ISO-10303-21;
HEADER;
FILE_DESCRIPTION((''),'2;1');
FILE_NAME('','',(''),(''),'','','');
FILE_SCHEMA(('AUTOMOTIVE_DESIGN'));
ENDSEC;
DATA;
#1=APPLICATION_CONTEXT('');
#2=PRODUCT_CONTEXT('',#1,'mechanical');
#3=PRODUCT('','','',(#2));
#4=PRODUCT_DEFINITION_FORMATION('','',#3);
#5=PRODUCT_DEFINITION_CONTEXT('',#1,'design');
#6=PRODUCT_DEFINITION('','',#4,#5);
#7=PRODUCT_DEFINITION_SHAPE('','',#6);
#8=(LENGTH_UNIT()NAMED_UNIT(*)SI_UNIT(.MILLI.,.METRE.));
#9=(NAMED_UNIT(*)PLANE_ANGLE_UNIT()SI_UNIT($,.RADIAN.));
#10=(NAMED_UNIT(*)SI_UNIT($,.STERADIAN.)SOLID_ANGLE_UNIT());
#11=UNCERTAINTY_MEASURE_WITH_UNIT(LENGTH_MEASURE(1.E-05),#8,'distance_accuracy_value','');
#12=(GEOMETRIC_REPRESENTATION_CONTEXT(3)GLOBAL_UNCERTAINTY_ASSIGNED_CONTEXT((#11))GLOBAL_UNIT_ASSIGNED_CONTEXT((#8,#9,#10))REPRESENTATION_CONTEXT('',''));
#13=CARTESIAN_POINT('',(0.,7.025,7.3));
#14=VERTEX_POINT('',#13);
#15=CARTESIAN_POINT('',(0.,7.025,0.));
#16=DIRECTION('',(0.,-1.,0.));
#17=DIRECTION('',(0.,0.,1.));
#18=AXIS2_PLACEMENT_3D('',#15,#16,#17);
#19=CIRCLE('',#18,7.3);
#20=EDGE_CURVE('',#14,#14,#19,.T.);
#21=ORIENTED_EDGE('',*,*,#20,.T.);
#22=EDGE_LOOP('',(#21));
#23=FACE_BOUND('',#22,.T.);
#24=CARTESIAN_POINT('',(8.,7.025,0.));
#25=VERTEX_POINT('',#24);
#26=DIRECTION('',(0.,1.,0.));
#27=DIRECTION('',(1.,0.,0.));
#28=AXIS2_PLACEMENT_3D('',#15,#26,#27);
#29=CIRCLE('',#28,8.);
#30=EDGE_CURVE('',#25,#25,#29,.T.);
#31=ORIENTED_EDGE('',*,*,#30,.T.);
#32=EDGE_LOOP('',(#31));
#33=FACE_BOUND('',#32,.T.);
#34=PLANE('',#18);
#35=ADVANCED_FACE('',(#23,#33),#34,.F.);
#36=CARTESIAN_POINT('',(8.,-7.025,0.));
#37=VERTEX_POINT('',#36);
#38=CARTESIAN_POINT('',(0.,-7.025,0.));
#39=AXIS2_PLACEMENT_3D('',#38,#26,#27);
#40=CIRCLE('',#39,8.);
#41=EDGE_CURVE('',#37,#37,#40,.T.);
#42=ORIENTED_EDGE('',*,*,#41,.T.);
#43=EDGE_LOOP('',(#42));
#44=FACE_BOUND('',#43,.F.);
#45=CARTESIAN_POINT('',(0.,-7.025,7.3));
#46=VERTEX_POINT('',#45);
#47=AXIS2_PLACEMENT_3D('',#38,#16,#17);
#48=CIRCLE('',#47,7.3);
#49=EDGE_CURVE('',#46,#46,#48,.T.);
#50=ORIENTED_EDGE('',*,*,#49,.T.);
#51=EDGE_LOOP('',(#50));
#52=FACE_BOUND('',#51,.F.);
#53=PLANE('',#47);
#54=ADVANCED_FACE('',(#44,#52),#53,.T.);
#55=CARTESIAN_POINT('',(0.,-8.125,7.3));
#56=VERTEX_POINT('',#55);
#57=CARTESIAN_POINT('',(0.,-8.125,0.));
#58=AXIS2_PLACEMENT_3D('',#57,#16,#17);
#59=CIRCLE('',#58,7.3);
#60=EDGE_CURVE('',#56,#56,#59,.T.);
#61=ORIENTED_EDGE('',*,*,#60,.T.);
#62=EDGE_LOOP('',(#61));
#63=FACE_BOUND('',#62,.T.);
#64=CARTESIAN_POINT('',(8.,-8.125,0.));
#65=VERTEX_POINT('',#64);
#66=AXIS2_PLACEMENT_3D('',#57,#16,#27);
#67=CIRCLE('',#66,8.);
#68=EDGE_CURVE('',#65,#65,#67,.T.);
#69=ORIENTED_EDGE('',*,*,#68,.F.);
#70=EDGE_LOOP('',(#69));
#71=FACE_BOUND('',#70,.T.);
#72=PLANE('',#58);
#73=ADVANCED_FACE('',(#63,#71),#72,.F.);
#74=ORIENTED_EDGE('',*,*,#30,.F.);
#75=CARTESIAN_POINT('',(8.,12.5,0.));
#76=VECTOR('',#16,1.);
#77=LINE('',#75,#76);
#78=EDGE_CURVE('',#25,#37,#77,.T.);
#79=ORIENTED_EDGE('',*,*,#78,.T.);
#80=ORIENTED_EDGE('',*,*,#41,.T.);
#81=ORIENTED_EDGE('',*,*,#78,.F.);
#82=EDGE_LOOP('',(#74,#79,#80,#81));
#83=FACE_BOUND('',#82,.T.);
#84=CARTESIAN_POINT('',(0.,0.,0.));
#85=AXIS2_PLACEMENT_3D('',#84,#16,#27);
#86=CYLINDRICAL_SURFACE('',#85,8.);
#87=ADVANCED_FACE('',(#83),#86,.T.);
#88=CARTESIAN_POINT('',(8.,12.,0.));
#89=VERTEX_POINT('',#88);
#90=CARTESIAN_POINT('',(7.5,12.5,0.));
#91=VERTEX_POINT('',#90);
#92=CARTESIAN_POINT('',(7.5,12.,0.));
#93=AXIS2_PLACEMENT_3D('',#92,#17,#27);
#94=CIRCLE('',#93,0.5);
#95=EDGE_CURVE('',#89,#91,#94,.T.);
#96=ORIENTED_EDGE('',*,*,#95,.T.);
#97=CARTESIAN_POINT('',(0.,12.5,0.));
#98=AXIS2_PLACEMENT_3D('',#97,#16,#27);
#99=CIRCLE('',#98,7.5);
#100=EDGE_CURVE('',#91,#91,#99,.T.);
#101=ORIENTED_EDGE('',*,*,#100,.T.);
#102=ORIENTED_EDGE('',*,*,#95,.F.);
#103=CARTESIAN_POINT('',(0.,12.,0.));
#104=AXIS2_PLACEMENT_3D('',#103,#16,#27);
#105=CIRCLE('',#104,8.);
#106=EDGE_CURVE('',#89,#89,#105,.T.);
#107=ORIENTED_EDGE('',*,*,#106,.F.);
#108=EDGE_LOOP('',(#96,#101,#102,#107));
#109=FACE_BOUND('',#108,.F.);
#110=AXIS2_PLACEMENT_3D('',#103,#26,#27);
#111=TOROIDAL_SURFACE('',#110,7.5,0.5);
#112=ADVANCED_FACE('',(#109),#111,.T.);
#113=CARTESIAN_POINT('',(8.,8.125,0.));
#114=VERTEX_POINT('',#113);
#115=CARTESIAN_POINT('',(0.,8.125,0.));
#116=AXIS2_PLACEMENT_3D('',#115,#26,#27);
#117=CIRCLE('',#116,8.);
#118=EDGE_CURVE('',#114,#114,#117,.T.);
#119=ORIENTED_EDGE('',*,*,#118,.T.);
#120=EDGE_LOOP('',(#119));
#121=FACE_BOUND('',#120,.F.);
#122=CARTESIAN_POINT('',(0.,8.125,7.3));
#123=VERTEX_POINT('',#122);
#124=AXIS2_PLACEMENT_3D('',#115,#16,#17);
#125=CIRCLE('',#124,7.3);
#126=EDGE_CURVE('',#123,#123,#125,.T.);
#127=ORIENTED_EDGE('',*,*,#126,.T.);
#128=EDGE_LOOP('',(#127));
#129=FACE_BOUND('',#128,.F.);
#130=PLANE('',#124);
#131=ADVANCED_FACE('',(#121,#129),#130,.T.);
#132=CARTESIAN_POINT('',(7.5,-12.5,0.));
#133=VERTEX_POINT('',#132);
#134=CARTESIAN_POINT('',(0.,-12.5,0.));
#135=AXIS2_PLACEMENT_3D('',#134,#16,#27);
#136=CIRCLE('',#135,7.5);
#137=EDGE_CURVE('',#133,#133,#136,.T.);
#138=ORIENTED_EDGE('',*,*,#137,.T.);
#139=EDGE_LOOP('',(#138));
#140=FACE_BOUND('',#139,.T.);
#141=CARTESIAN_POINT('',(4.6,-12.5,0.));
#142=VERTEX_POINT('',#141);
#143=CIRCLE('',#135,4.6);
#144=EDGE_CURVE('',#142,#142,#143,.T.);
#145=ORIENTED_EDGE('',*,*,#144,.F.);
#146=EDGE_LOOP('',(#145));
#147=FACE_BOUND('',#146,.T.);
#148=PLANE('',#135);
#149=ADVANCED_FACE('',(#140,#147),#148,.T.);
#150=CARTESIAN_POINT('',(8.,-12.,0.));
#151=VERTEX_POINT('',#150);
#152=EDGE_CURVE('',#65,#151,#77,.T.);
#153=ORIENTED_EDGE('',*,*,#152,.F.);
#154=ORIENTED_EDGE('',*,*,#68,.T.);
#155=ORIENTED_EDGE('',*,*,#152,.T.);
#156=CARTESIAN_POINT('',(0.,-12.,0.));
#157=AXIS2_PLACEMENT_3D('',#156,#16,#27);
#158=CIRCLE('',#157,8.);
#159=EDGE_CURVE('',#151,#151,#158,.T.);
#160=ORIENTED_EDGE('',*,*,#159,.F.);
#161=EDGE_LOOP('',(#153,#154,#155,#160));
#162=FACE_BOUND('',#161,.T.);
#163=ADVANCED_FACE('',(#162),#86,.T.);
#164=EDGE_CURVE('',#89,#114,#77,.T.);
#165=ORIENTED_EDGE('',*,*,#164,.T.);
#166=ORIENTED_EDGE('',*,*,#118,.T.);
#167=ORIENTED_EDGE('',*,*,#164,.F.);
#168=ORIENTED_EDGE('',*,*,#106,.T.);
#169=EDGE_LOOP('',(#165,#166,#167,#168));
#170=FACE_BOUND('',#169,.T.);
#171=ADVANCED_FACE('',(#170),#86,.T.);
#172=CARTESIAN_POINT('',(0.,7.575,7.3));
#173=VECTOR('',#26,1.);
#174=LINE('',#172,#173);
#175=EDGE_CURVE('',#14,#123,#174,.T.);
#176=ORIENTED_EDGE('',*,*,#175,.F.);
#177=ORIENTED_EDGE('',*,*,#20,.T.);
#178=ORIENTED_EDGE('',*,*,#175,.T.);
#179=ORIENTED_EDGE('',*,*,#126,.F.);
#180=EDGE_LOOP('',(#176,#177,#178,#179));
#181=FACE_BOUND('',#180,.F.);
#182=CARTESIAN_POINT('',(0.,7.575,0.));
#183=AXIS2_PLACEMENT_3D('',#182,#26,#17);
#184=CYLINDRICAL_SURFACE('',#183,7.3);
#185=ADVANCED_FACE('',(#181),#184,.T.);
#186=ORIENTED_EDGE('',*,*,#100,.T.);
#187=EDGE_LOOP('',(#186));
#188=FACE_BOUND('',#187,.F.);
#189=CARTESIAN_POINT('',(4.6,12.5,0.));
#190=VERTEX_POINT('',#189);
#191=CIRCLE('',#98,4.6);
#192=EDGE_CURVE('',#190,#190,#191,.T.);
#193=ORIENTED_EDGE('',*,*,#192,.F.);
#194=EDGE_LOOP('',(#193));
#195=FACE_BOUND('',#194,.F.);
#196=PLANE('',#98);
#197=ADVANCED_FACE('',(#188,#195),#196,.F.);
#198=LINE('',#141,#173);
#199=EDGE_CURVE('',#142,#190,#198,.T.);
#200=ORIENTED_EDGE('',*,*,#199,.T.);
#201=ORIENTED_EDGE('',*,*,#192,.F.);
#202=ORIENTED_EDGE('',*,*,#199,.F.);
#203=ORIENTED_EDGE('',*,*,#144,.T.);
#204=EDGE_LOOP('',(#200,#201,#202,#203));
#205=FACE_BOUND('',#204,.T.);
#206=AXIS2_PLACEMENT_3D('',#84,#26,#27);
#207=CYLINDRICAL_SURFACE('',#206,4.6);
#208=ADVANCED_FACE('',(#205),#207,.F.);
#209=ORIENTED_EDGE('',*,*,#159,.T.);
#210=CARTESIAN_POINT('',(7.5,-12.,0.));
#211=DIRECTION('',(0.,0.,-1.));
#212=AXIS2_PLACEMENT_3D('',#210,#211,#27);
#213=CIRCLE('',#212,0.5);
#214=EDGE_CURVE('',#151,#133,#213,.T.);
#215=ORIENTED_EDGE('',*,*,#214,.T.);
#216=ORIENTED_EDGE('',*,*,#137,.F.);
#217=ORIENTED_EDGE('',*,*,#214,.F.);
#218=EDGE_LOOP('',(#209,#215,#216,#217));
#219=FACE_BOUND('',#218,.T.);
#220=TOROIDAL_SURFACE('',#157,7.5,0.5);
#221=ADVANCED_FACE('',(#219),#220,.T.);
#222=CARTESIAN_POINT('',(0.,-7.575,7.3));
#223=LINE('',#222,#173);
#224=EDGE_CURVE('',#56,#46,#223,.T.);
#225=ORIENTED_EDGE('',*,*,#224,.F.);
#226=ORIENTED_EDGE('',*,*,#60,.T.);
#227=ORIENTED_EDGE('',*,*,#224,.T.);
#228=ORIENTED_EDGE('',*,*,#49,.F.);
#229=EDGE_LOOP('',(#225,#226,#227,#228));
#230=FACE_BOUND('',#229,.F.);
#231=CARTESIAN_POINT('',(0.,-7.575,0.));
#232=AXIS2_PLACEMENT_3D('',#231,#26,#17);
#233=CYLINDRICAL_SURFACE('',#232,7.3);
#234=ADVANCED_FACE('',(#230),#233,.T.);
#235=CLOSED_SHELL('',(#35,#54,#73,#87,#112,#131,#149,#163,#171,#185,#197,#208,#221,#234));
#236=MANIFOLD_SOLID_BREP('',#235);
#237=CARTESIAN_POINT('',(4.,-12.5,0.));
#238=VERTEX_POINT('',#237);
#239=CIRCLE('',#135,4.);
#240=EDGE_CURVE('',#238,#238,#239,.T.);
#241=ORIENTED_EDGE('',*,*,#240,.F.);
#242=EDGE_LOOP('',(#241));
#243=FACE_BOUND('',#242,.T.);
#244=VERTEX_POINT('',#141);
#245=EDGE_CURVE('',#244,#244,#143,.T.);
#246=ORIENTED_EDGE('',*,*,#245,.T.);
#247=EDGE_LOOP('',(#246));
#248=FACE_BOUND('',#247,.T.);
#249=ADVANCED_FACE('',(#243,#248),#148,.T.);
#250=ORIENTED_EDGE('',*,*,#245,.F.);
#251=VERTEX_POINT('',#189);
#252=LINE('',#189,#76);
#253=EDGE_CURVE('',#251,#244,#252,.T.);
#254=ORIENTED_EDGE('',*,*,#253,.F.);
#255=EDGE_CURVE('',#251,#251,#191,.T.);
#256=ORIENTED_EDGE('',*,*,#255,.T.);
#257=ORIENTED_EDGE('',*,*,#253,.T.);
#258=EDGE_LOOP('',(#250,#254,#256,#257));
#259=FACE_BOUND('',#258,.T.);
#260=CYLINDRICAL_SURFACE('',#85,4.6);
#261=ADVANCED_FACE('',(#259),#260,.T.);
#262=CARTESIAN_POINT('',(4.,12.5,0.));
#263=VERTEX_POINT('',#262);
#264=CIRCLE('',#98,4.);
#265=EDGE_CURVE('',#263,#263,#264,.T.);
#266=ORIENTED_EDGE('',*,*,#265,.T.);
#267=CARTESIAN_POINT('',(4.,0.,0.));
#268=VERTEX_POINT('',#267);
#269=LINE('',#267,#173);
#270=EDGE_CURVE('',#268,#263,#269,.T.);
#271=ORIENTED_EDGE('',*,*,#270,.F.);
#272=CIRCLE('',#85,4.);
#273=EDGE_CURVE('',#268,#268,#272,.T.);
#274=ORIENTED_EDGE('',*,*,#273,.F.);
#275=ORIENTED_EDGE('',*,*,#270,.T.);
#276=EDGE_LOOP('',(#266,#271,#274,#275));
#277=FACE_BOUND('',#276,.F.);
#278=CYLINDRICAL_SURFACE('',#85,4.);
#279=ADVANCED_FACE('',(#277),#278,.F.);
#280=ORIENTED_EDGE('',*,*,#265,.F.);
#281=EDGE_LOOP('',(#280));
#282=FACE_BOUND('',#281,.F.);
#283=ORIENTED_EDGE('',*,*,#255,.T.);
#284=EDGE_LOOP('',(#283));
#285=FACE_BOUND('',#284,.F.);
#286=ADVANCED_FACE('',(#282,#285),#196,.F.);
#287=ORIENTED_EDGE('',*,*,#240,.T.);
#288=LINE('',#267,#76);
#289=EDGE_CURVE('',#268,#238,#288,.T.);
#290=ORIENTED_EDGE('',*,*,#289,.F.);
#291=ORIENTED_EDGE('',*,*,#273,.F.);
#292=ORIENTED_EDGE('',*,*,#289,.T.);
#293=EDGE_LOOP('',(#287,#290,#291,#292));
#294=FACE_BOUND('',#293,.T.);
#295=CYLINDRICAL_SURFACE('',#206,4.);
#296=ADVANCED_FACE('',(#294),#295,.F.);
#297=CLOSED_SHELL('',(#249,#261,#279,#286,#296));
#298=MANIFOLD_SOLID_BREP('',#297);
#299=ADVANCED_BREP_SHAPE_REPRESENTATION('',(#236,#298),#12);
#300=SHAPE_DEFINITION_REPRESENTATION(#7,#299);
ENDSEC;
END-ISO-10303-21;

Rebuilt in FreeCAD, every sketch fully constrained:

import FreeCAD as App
import Part
import Sketcher

V = App.Vector
Q = App.Units.Quantity


def edges_at(feature, points):
    """Names of the edges that pass closest to the given points."""
    edges = feature.Shape.Edges
    near = lambda p: min(range(len(edges)), key=lambda i: edges[i].distToShape(Part.Vertex(*p))[0])
    return sorted({f"Edge{near(p) + 1}" for p in points})

doc = App.newDocument("Part")
params = doc.addObject("Spreadsheet::Sheet", "Params")
for row, (alias, value) in enumerate([
    ("sketch1_diameter", "16 mm"),
    ("sketch1_diameter2", "9.2 mm"),
    ("pad1_length", "25 mm"),
    ("sketch2_width", "1.1 mm"),
    ("sketch2_height", "0.7 mm"),
    ("groove_angle", "360 deg"),
    ("fillet_radius", "0.5 mm"),
    ("sketch3_diameter", "8 mm"),
    ("sketch3_diameter2", "9.2 mm"),
    ("pad2_length", "12.5 mm"),
    ("pad2_length2", "12.5 mm"),
], start=1):
    params.set(f"A{row}", alias)
    params.set(f"B{row}", "=" + value)
    params.setAlias(f"B{row}", alias)

body = doc.addObject("PartDesign::Body", "Body")

sketch1 = body.newObject("Sketcher::SketchObject", "Sketch")
sketch1.AttachmentSupport = (doc.getObject("XZ_Plane"), [""])
sketch1.MapMode = "FlatFace"
sketch1.addGeometry(Part.Circle(V(0, 0, 0), V(0, 0, 1), 8), False)
sketch1.addGeometry(Part.Circle(V(0, 0, 0), V(0, 0, 1), 4.6), False)
sketch1.addConstraint(Sketcher.Constraint("Coincident", 0, 3, -1, 1))
sketch1.addConstraint(Sketcher.Constraint("Coincident", 1, 3, -1, 1))
sketch1.addConstraint(Sketcher.Constraint("Diameter", 0, Q("16 mm")))
sketch1.addConstraint(Sketcher.Constraint("Diameter", 1, Q("9.2 mm")))
sketch1.setExpression("Constraints[2]", "Params.sketch1_diameter")
sketch1.setExpression("Constraints[3]", "Params.sketch1_diameter2")
pad1 = body.newObject("PartDesign::Pad", "Pad")
pad1.Profile = sketch1
pad1.setExpression("Length", "Params.pad1_length")
pad1.Midplane = True

sketch2 = body.newObject("Sketcher::SketchObject", "Sketch001")
sketch2.AttachmentSupport = (doc.getObject("YZ_Plane"), [""])
sketch2.MapMode = "FlatFace"
sketch2.addGeometry(Part.LineSegment(V(-8.1, 8, 0), V(-8.1, 7.3, 0)), False)
sketch2.addGeometry(Part.LineSegment(V(-8.1, 7.3, 0), V(-7, 7.3, 0)), False)
sketch2.addGeometry(Part.LineSegment(V(-7, 7.3, 0), V(-7, 8, 0)), False)
sketch2.addGeometry(Part.LineSegment(V(-7, 8, 0), V(-8.1, 8, 0)), False)
sketch2.addGeometry(Part.LineSegment(V(7, 8, 0), V(7, 7.3, 0)), False)
sketch2.addGeometry(Part.LineSegment(V(7, 7.3, 0), V(8.1, 7.3, 0)), False)
sketch2.addGeometry(Part.LineSegment(V(8.1, 7.3, 0), V(8.1, 8, 0)), False)
sketch2.addGeometry(Part.LineSegment(V(8.1, 8, 0), V(7, 8, 0)), False)
sketch2.addConstraint(Sketcher.Constraint("Coincident", 0, 2, 1, 1))
sketch2.addConstraint(Sketcher.Constraint("Coincident", 1, 2, 2, 1))
sketch2.addConstraint(Sketcher.Constraint("Coincident", 2, 2, 3, 1))
sketch2.addConstraint(Sketcher.Constraint("Coincident", 3, 2, 0, 1))
sketch2.addConstraint(Sketcher.Constraint("Coincident", 4, 2, 5, 1))
sketch2.addConstraint(Sketcher.Constraint("Coincident", 5, 2, 6, 1))
sketch2.addConstraint(Sketcher.Constraint("Coincident", 6, 2, 7, 1))
sketch2.addConstraint(Sketcher.Constraint("Coincident", 7, 2, 4, 1))
sketch2.addConstraint(Sketcher.Constraint("Vertical", 0))
sketch2.addConstraint(Sketcher.Constraint("Horizontal", 1))
sketch2.addConstraint(Sketcher.Constraint("Vertical", 2))
sketch2.addConstraint(Sketcher.Constraint("Horizontal", 3))
sketch2.addConstraint(Sketcher.Constraint("Vertical", 4))
sketch2.addConstraint(Sketcher.Constraint("Horizontal", 5))
sketch2.addConstraint(Sketcher.Constraint("Vertical", 6))
sketch2.addConstraint(Sketcher.Constraint("Horizontal", 7))
sketch2.addConstraint(Sketcher.Constraint("Symmetric", 1, 2, 4, 2, -2))
sketch2.addConstraint(Sketcher.Constraint("Symmetric", 3, 2, 6, 2, -2))
sketch2.addConstraint(Sketcher.Constraint("DistanceX", 1, 1, 1, 2, Q("1.1 mm")))
sketch2.addConstraint(Sketcher.Constraint("DistanceY", 0, 2, 0, 1, Q("0.7 mm")))
sketch2.addConstraint(Sketcher.Constraint("DistanceY", -1, 1, 2, 2, Q("8 mm")))
sketch2.addConstraint(Sketcher.Constraint("DistanceX", 1, 2, 4, 2, Q("14.05 mm")))
sketch2.setExpression("Constraints[18]", "Params.sketch2_width")
sketch2.setExpression("Constraints[19]", "Params.sketch2_height")
groove = body.newObject("PartDesign::Groove", "Groove")
groove.Profile = sketch2
groove.ReferenceAxis = (sketch2, ["H_Axis"])
groove.setExpression("Angle", "Params.groove_angle")
doc.recompute()

fillet = body.newObject("PartDesign::Fillet", "Fillet")
fillet.Base = (groove, edges_at(groove, [(-8, -12.5, 0), (-8, 12.5, 0)]))
fillet.setExpression("Radius", "Params.fillet_radius")
body2 = doc.addObject("PartDesign::Body", "Body001")

sketch3 = body2.newObject("Sketcher::SketchObject", "Sketch002")
sketch3.AttachmentSupport = (doc.getObject("XZ_Plane001"), [""])
sketch3.MapMode = "FlatFace"
sketch3.addGeometry(Part.Circle(V(0, 0, 0), V(0, 0, 1), 4.6), False)
sketch3.addGeometry(Part.Circle(V(0, 0, 0), V(0, 0, 1), 4), False)
sketch3.addConstraint(Sketcher.Constraint("Coincident", 0, 3, -1, 1))
sketch3.addConstraint(Sketcher.Constraint("Coincident", 1, 3, -1, 1))
sketch3.addConstraint(Sketcher.Constraint("Diameter", 1, Q("8 mm")))
sketch3.addConstraint(Sketcher.Constraint("Diameter", 0, Q("9.2 mm")))
sketch3.setExpression("Constraints[2]", "Params.sketch3_diameter")
sketch3.setExpression("Constraints[3]", "Params.sketch3_diameter2")
pad2 = body2.newObject("PartDesign::Pad", "Pad001")
pad2.Profile = sketch3
pad2.Type = "TwoLengths"
pad2.setExpression("Length", "Params.pad2_length")
pad2.setExpression("Length2", "Params.pad2_length2")

doc.recompute()
